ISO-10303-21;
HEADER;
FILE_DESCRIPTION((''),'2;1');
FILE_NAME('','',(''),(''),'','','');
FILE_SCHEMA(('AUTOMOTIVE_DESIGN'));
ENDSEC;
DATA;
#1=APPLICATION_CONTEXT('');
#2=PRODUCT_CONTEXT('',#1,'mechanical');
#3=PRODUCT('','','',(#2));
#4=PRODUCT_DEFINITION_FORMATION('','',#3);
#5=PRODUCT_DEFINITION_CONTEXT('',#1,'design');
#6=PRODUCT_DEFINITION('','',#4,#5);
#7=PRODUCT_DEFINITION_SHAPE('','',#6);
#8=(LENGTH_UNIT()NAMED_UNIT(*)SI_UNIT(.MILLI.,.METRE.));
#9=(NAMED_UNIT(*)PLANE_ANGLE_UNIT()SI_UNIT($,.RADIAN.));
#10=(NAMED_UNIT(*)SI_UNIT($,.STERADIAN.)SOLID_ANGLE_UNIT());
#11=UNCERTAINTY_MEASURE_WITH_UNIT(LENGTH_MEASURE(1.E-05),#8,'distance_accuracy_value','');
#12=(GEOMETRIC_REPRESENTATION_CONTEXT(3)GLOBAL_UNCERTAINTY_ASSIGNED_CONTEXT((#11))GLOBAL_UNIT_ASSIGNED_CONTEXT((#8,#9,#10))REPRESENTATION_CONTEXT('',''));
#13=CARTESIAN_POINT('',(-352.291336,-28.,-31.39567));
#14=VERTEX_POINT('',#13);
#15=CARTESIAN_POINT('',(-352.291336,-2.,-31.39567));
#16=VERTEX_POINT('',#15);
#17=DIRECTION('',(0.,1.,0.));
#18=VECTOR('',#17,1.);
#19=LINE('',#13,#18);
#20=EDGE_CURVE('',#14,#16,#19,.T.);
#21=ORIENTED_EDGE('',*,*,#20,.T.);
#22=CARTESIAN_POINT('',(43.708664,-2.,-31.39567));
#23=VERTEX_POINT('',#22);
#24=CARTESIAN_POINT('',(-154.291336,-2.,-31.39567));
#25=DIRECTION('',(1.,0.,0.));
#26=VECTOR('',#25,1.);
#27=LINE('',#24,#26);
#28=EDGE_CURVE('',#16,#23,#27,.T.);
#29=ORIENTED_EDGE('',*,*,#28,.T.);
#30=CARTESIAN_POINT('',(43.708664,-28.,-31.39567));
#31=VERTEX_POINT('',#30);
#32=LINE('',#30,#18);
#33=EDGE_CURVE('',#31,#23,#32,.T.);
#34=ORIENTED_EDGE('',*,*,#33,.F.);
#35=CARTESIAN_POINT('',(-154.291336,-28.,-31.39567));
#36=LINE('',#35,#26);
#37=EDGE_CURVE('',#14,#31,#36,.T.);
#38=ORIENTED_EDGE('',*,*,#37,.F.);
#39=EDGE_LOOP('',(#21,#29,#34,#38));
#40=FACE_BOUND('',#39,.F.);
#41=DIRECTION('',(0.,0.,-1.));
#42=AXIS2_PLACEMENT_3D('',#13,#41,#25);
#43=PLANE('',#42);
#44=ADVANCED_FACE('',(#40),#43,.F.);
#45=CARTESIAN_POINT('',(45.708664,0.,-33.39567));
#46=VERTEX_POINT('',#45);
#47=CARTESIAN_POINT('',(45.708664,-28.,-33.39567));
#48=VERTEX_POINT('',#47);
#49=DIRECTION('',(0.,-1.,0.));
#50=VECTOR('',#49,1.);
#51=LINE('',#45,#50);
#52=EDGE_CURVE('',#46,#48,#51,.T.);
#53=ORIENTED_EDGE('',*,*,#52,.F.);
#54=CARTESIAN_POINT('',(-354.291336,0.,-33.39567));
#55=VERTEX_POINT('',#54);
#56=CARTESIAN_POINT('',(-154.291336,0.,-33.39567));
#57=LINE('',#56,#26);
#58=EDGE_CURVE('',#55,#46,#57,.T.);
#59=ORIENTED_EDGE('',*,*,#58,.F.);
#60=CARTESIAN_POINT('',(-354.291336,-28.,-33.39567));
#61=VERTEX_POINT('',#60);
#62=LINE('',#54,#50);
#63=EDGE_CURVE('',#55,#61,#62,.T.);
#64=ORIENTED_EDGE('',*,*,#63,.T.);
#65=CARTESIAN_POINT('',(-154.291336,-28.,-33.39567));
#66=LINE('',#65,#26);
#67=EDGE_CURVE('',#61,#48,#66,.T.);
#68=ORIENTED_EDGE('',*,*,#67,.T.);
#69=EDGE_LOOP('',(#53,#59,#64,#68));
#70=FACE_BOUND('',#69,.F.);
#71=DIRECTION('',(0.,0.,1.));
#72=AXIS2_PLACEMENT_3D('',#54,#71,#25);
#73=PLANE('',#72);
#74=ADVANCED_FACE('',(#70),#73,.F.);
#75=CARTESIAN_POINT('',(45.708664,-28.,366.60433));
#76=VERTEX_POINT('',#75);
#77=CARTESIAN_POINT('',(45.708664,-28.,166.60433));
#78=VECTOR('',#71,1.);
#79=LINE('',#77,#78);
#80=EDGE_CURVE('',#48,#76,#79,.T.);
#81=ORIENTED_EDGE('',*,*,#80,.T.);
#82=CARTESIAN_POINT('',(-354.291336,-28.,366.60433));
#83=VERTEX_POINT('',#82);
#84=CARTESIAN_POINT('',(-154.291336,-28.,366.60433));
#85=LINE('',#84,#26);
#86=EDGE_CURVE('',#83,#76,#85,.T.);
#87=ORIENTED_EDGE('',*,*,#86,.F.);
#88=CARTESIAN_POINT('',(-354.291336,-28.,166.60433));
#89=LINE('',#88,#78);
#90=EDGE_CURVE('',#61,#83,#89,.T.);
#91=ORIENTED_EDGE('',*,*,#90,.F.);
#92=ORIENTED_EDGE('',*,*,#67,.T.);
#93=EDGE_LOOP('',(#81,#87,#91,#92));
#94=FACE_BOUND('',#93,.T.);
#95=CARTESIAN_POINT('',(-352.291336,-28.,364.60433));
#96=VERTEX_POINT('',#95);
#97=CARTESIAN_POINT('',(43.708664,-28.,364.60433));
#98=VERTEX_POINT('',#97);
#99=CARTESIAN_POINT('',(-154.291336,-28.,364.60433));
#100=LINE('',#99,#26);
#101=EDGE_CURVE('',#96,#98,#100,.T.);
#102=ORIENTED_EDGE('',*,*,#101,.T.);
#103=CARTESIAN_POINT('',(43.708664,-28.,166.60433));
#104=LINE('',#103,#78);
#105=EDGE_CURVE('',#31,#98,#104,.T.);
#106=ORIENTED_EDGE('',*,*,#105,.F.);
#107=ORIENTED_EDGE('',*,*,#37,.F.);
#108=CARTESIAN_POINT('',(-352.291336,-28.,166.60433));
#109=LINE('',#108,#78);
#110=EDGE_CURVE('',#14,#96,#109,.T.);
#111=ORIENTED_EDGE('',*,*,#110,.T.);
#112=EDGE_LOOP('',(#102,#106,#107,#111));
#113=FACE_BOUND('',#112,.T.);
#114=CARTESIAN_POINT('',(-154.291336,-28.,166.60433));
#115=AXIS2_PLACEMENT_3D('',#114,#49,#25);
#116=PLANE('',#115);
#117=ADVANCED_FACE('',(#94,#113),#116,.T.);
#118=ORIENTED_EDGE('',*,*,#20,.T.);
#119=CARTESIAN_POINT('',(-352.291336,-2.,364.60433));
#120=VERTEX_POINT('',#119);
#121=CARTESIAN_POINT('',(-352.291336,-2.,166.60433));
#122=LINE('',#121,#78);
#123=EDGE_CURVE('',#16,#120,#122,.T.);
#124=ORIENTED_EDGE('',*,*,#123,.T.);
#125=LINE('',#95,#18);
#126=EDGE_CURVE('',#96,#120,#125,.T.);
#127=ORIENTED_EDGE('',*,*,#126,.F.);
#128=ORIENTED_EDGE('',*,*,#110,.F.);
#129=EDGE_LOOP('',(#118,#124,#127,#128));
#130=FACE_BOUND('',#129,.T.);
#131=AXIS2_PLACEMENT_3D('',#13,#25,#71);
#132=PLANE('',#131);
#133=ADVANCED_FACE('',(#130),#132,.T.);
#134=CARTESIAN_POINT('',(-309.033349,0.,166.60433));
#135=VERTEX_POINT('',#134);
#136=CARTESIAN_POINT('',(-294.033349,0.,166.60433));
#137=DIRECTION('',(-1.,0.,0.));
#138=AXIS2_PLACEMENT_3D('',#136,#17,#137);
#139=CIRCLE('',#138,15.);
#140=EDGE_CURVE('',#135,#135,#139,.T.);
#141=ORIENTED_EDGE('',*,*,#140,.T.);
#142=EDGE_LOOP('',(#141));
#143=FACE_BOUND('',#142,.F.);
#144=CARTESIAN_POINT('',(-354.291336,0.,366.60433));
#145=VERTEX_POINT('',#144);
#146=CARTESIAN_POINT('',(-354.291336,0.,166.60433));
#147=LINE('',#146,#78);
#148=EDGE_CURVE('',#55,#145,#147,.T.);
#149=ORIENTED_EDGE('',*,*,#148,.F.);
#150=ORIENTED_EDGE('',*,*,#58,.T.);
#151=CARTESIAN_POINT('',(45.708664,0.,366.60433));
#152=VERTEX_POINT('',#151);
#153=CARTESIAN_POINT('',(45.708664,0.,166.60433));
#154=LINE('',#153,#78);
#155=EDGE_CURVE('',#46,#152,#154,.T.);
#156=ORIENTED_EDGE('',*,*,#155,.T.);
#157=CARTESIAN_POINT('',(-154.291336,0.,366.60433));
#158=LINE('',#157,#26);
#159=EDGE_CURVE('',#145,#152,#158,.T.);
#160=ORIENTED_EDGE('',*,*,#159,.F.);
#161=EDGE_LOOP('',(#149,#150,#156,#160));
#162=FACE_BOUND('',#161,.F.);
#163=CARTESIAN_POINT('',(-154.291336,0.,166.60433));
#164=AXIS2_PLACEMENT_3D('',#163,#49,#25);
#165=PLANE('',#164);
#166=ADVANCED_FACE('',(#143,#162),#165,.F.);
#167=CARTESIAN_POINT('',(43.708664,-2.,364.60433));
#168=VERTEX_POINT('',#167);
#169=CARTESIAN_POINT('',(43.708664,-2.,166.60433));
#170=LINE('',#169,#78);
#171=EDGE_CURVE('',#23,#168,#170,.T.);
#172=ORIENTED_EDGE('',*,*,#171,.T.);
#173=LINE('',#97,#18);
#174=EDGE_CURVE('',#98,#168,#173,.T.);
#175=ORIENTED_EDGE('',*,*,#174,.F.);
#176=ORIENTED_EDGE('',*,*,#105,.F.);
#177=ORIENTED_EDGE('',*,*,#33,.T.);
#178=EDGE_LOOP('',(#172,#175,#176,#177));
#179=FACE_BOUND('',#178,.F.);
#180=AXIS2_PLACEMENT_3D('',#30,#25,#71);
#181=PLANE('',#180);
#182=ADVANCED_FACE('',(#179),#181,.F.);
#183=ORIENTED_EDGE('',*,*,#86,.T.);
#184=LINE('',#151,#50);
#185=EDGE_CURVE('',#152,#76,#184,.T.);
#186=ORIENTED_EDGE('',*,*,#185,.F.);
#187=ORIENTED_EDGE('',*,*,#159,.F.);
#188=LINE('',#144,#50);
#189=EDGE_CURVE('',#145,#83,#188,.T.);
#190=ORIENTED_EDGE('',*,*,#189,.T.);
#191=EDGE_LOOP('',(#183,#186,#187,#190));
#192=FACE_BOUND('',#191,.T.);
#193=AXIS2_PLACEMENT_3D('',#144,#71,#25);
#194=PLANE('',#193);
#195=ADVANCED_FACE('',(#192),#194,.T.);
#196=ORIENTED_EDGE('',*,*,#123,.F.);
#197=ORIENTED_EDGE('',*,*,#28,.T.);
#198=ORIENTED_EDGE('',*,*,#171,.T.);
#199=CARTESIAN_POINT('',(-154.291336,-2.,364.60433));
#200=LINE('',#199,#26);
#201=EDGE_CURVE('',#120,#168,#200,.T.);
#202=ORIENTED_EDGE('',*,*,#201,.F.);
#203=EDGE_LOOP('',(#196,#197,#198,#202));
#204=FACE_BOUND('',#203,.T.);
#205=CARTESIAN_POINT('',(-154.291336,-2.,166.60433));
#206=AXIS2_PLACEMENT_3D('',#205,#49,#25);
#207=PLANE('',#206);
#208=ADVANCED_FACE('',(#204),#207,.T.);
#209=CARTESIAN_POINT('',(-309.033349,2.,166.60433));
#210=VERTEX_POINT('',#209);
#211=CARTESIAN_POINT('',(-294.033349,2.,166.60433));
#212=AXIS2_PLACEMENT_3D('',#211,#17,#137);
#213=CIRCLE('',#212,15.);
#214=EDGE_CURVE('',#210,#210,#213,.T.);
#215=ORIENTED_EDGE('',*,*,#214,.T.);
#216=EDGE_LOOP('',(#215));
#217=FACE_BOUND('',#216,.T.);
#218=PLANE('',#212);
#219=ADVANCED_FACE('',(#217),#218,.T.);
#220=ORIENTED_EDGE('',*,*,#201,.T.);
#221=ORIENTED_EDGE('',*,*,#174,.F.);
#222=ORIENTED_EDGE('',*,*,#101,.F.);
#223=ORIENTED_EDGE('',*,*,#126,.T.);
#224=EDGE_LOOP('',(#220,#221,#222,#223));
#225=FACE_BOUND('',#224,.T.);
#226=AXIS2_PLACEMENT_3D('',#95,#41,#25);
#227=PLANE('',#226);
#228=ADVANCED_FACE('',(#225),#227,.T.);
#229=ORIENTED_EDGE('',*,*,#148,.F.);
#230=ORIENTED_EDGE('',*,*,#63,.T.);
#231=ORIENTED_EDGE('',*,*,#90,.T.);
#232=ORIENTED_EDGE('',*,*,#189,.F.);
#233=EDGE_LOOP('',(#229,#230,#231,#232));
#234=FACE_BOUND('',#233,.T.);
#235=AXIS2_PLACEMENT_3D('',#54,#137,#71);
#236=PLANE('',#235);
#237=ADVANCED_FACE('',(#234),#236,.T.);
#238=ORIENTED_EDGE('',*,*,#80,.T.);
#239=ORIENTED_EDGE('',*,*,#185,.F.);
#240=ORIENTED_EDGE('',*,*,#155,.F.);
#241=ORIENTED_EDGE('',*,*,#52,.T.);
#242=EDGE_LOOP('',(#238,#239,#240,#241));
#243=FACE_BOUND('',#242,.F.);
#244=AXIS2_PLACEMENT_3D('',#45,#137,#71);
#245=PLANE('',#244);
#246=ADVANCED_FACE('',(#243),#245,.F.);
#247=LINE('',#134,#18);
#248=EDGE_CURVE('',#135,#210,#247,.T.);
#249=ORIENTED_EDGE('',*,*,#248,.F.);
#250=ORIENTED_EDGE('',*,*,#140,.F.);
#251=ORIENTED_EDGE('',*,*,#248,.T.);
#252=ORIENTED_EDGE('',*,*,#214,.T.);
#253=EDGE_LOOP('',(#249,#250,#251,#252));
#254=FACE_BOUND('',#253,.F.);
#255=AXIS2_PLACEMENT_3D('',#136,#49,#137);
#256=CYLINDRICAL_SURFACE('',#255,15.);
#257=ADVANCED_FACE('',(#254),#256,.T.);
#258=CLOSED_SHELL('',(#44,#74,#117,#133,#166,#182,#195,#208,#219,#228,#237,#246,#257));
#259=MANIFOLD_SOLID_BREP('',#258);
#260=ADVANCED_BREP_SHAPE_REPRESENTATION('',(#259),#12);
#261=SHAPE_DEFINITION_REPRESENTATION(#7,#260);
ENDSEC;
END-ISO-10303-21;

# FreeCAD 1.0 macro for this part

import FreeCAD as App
import Part
import Sketcher

V = App.Vector
Q = App.Units.Quantity

doc = App.newDocument("Part")
params = doc.addObject("Spreadsheet::Sheet", "Params")
for row, (alias, value) in enumerate([
    ("sketch1_width", "400 mm"),
    ("pad1_length", "28 mm"),
    ("sketch2_width", "396 mm"),
    ("pocket1_length", "26 mm"),
    ("sketch3_diameter", "30 mm"),
    ("pad2_length", "2 mm"),
], start=1):
    params.set(f"A{row}", alias)
    params.set(f"B{row}", "=" + value)
    params.setAlias(f"B{row}", alias)

body = doc.addObject("PartDesign::Body", "Body")

sketch1 = body.newObject("Sketcher::SketchObject", "Sketch")
sketch1.AttachmentSupport = (doc.getObject("XZ_Plane"), [""])
sketch1.MapMode = "FlatFace"
sketch1.addGeometry(Part.LineSegment(V(-354.291336, 366.60433, 0), V(-354.291336, -33.39567, 0)), False)
sketch1.addGeometry(Part.LineSegment(V(-354.291336, -33.39567, 0), V(45.708664, -33.39567, 0)), False)
sketch1.addGeometry(Part.LineSegment(V(45.708664, -33.39567, 0), V(45.708664, 366.60433, 0)), False)
sketch1.addGeometry(Part.LineSegment(V(45.708664, 366.60433, 0), V(-354.291336, 366.60433, 0)), False)
sketch1.addConstraint(Sketcher.Constraint("Coincident", 0, 2, 1, 1))
sketch1.addConstraint(Sketcher.Constraint("Coincident", 1, 2, 2, 1))
sketch1.addConstraint(Sketcher.Constraint("Coincident", 2, 2, 3, 1))
sketch1.addConstraint(Sketcher.Constraint("Coincident", 3, 2, 0, 1))
sketch1.addConstraint(Sketcher.Constraint("Vertical", 0))
sketch1.addConstraint(Sketcher.Constraint("Horizontal", 1))
sketch1.addConstraint(Sketcher.Constraint("Vertical", 2))
sketch1.addConstraint(Sketcher.Constraint("Horizontal", 3))
sketch1.addConstraint(Sketcher.Constraint("Equal", 3, 0))
sketch1.addConstraint(Sketcher.Constraint("DistanceX", 1, 1, 1, 2, Q("400 mm")))
sketch1.addConstraint(Sketcher.Constraint("DistanceY", 0, 2, -1, 1, Q("33.39567 mm")))
sketch1.addConstraint(Sketcher.Constraint("DistanceX", 0, 2, -1, 1, Q("354.291336 mm")))
sketch1.setExpression("Constraints[9]", "Params.sketch1_width")
pad1 = body.newObject("PartDesign::Pad", "Pad")
pad1.Profile = sketch1
pad1.setExpression("Length", "Params.pad1_length")

sketch2 = body.newObject("Sketcher::SketchObject", "Sketch001")
sketch2.AttachmentSupport = (doc.getObject("XZ_Plane"), [""])
sketch2.MapMode = "FlatFace"
sketch2.AttachmentOffset = App.Placement(V(0, 0, 28), App.Rotation())
sketch2.addGeometry(Part.LineSegment(V(-352.291336, 364.60433, 0), V(-352.291336, -31.39567, 0)), False)
sketch2.addGeometry(Part.LineSegment(V(-352.291336, -31.39567, 0), V(43.708664, -31.39567, 0)), False)
sketch2.addGeometry(Part.LineSegment(V(43.708664, -31.39567, 0), V(43.708664, 364.60433, 0)), False)
sketch2.addGeometry(Part.LineSegment(V(43.708664, 364.60433, 0), V(-352.291336, 364.60433, 0)), False)
sketch2.addConstraint(Sketcher.Constraint("Coincident", 0, 2, 1, 1))
sketch2.addConstraint(Sketcher.Constraint("Coincident", 1, 2, 2, 1))
sketch2.addConstraint(Sketcher.Constraint("Coincident", 2, 2, 3, 1))
sketch2.addConstraint(Sketcher.Constraint("Coincident", 3, 2, 0, 1))
sketch2.addConstraint(Sketcher.Constraint("Vertical", 0))
sketch2.addConstraint(Sketcher.Constraint("Horizontal", 1))
sketch2.addConstraint(Sketcher.Constraint("Vertical", 2))
sketch2.addConstraint(Sketcher.Constraint("Horizontal", 3))
sketch2.addConstraint(Sketcher.Constraint("Equal", 3, 0))
sketch2.addConstraint(Sketcher.Constraint("DistanceX", 1, 1, 1, 2, Q("396 mm")))
sketch2.addConstraint(Sketcher.Constraint("DistanceY", 0, 2, -1, 1, Q("31.39567 mm")))
sketch2.addConstraint(Sketcher.Constraint("DistanceX", 0, 2, -1, 1, Q("352.291336 mm")))
sketch2.setExpression("Constraints[9]", "Params.sketch2_width")
pocket1 = body.newObject("PartDesign::Pocket", "Pocket")
pocket1.Profile = sketch2
pocket1.setExpression("Length", "Params.pocket1_length")

sketch3 = body.newObject("Sketcher::SketchObject", "Sketch002")
sketch3.AttachmentSupport = (doc.getObject("XZ_Plane"), [""])
sketch3.MapMode = "FlatFace"
sketch3.addGeometry(Part.Circle(V(-294.033349, 166.60433, 0), V(0, 0, 1), 15), False)
sketch3.addConstraint(Sketcher.Constraint("Diameter", 0, Q("30 mm")))
sketch3.addConstraint(Sketcher.Constraint("DistanceX", 0, 3, -1, 1, Q("294.033349 mm")))
sketch3.addConstraint(Sketcher.Constraint("DistanceY", -1, 1, 0, 3, Q("166.60433 mm")))
sketch3.setExpression("Constraints[0]", "Params.sketch3_diameter")
pad2 = body.newObject("PartDesign::Pad", "Pad001")
pad2.Profile = sketch3
pad2.setExpression("Length", "Params.pad2_length")
pad2.Reversed = True

doc.recompute()
